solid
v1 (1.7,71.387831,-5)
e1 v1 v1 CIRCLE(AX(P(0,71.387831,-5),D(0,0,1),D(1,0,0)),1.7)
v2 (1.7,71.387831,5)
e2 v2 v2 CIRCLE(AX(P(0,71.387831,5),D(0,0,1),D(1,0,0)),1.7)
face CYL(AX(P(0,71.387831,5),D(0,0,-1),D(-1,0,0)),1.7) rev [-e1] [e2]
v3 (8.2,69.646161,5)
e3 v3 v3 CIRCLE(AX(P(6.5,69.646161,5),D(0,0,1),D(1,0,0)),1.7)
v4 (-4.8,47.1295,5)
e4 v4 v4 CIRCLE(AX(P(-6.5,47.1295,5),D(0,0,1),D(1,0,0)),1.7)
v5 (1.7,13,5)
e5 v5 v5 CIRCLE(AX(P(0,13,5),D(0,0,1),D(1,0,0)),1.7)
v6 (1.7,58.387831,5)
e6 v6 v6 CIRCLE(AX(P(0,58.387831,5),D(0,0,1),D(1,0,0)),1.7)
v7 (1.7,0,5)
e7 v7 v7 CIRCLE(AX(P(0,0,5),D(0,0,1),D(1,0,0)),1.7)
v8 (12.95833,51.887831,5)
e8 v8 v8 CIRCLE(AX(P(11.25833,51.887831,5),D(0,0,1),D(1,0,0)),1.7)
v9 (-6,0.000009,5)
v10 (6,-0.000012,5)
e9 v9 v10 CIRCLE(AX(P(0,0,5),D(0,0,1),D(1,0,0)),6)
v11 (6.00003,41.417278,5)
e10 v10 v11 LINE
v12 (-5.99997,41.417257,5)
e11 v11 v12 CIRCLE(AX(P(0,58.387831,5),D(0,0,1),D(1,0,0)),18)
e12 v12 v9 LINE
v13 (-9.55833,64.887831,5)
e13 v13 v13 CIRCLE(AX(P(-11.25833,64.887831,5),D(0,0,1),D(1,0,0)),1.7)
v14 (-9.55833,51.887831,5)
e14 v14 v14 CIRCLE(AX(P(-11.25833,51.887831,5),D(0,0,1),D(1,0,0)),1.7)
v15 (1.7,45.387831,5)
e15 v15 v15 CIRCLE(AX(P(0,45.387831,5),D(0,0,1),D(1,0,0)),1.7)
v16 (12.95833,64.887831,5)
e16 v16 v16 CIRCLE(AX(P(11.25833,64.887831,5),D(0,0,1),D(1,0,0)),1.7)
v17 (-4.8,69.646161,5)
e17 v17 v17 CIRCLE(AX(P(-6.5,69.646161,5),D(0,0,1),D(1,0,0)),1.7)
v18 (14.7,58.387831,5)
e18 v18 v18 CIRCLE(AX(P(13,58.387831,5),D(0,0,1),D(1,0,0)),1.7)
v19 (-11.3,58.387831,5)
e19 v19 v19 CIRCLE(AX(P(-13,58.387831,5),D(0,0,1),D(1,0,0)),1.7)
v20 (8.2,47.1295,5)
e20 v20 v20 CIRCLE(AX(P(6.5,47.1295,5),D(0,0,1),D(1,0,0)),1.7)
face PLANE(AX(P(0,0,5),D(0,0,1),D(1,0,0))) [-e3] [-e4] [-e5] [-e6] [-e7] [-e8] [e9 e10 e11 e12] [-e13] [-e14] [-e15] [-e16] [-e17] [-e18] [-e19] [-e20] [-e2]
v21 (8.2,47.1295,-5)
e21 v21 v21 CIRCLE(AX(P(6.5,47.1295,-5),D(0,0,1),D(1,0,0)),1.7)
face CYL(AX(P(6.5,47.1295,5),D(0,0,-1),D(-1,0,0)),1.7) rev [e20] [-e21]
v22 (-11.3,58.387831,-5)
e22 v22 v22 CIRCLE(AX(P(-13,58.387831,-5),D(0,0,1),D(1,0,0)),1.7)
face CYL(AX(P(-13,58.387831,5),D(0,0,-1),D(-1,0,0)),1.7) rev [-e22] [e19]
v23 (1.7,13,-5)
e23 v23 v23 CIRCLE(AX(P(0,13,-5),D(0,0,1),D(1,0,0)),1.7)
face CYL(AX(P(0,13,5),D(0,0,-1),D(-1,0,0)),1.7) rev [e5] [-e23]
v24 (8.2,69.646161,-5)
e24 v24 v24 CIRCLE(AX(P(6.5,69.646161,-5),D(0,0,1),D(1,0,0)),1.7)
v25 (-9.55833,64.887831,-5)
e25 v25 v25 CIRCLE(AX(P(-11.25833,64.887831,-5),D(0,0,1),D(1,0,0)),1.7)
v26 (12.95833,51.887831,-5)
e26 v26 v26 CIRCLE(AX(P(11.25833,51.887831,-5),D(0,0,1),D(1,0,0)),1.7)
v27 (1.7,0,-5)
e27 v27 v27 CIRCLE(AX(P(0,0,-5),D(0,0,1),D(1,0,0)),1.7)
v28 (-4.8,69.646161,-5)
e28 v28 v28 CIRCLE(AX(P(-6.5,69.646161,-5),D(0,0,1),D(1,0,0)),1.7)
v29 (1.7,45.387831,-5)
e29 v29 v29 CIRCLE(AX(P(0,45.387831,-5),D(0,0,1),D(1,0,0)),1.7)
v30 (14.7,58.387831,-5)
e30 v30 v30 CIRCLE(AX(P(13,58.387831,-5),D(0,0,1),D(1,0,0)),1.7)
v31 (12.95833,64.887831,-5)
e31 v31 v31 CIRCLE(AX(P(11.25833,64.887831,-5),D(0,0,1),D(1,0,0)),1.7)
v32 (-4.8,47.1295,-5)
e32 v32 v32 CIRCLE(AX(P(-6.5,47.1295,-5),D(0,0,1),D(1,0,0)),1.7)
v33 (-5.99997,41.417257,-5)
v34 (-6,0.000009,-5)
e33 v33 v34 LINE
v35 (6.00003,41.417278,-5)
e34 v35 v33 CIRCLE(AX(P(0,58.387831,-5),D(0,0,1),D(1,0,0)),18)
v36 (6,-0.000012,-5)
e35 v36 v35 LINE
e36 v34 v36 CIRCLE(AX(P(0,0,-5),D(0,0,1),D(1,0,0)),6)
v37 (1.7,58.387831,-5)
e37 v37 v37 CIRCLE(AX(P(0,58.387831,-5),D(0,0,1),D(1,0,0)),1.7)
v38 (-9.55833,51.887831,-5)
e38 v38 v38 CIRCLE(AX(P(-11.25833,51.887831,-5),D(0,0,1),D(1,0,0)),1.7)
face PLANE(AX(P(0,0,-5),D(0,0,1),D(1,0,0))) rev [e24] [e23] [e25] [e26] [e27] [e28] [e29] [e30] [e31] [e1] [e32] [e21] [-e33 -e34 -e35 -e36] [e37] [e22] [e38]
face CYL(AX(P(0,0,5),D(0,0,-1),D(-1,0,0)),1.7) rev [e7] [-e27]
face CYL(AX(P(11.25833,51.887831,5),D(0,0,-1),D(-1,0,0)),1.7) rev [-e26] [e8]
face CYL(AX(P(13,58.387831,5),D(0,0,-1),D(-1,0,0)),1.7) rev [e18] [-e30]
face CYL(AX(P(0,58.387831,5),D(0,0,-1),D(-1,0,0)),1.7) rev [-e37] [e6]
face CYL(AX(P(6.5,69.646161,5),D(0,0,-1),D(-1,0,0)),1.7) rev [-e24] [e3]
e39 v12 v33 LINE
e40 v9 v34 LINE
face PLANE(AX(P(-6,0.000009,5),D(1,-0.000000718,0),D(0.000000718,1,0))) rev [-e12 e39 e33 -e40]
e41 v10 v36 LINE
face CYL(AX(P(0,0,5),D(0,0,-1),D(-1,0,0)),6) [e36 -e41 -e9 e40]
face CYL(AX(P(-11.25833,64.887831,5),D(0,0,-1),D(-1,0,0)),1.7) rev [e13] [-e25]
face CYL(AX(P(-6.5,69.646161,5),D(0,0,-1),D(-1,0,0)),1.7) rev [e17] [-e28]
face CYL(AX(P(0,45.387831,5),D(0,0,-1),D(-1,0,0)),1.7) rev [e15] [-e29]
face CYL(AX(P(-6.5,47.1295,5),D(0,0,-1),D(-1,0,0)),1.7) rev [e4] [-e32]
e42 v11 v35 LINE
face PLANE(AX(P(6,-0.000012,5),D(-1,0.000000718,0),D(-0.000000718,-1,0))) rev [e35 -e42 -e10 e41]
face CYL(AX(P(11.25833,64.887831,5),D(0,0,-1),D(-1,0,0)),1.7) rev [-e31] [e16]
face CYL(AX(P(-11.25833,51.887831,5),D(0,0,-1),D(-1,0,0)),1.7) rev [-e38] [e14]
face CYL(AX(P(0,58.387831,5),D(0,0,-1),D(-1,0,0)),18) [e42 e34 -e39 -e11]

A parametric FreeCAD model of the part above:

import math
import FreeCAD as App
import Part
import Sketcher
Q = App.Units.Quantity

doc = App.newDocument("Part")
body = doc.addObject("PartDesign::Body", "Body")

# Sketch on XY plane
sketch1 = body.newObject("Sketcher::SketchObject", "Sketch")
sketch1.AttachmentSupport = (doc.getObject("XY_Plane"), [""])
sketch1.MapMode = "FlatFace"
sketch1.addGeometry(Part.LineSegment(App.Vector(-6, 41.4, 0), App.Vector(-6, 0, 0)), False)
sketch1.addGeometry(Part.ArcOfCircle(Part.Circle(App.Vector(0, 0, 0), App.Vector(0, 0, 1), 6), math.radians(180), math.radians(360)), False)
sketch1.addGeometry(Part.LineSegment(App.Vector(6, 0, 0), App.Vector(6, 41.4, 0)), False)
sketch1.addGeometry(Part.ArcOfCircle(Part.Circle(App.Vector(0, 58.4, 0), App.Vector(0, 0, 1), 18), math.radians(-71), math.radians(251)), False)
sketch1.addGeometry(Part.Circle(App.Vector(0, 0, 0), App.Vector(0, 0, 1), 1.7), False)
sketch1.addGeometry(Part.Circle(App.Vector(0, 13, 0), App.Vector(0, 0, 1), 1.7), False)
sketch1.addGeometry(Part.Circle(App.Vector(11.3, 51.9, 0), App.Vector(0, 0, 1), 1.7), False)
sketch1.addGeometry(Part.Circle(App.Vector(6.5, 47.1, 0), App.Vector(0, 0, 1), 1.7), False)
sketch1.addGeometry(Part.Circle(App.Vector(13, 58.4, 0), App.Vector(0, 0, 1), 1.7), False)
sketch1.addGeometry(Part.Circle(App.Vector(11.3, 64.9, 0), App.Vector(0, 0, 1), 1.7), False)
sketch1.addGeometry(Part.Circle(App.Vector(6.5, 69.6, 0), App.Vector(0, 0, 1), 1.7), False)
sketch1.addGeometry(Part.Circle(App.Vector(0, 45.4, 0), App.Vector(0, 0, 1), 1.7), False)
sketch1.addGeometry(Part.Circle(App.Vector(-6.5, 47.1, 0), App.Vector(0, 0, 1), 1.7), False)
sketch1.addGeometry(Part.Circle(App.Vector(-11.3, 51.9, 0), App.Vector(0, 0, 1), 1.7), False)
sketch1.addGeometry(Part.Circle(App.Vector(0, 58.4, 0), App.Vector(0, 0, 1), 1.7), False)
sketch1.addGeometry(Part.Circle(App.Vector(0, 71.4, 0), App.Vector(0, 0, 1), 1.7), False)
sketch1.addGeometry(Part.Circle(App.Vector(-6.5, 69.6, 0), App.Vector(0, 0, 1), 1.7), False)
sketch1.addGeometry(Part.Circle(App.Vector(-13, 58.4, 0), App.Vector(0, 0, 1), 1.7), False)
sketch1.addGeometry(Part.Circle(App.Vector(-11.3, 64.9, 0), App.Vector(0, 0, 1), 1.7), False)
sketch1.addConstraint(Sketcher.Constraint("Tangent", 0, 2, 1, 1))
sketch1.addConstraint(Sketcher.Constraint("Tangent", 1, 2, 2, 1))
sketch1.addConstraint(Sketcher.Constraint("Coincident", 2, 2, 3, 1))
sketch1.addConstraint(Sketcher.Constraint("Coincident", 3, 2, 0, 1))
sketch1.addConstraint(Sketcher.Constraint("Coincident", 1, 3, -1, 1))
sketch1.addConstraint(Sketcher.Constraint("Coincident", 4, 3, -1, 1))
sketch1.addConstraint(Sketcher.Constraint("Coincident", 14, 3, 3, 3))
sketch1.addConstraint(Sketcher.Constraint("Equal", 4, 5))
sketch1.addConstraint(Sketcher.Constraint("Equal", 5, 6))
sketch1.addConstraint(Sketcher.Constraint("Equal", 6, 7))
sketch1.addConstraint(Sketcher.Constraint("Equal", 7, 8))
sketch1.addConstraint(Sketcher.Constraint("Equal", 8, 9))
sketch1.addConstraint(Sketcher.Constraint("Equal", 9, 10))
sketch1.addConstraint(Sketcher.Constraint("Equal", 10, 11))
sketch1.addConstraint(Sketcher.Constraint("Equal", 11, 12))
sketch1.addConstraint(Sketcher.Constraint("Equal", 12, 13))
sketch1.addConstraint(Sketcher.Constraint("Equal", 13, 14))
sketch1.addConstraint(Sketcher.Constraint("Equal", 14, 15))
sketch1.addConstraint(Sketcher.Constraint("Equal", 15, 16))
sketch1.addConstraint(Sketcher.Constraint("Equal", 16, 17))
sketch1.addConstraint(Sketcher.Constraint("Equal", 17, 18))
sketch1.addConstraint(Sketcher.Constraint("Symmetric", 7, 3, 12, 3, -2))
sketch1.addConstraint(Sketcher.Constraint("Symmetric", 6, 3, 13, 3, -2))
sketch1.addConstraint(Sketcher.Constraint("Symmetric", 10, 3, 16, 3, -2))
sketch1.addConstraint(Sketcher.Constraint("Symmetric", 8, 3, 17, 3, -2))
sketch1.addConstraint(Sketcher.Constraint("Symmetric", 9, 3, 18, 3, -2))
sketch1.addConstraint(Sketcher.Constraint("PointOnObject", 3, 3, -2))
sketch1.addConstraint(Sketcher.Constraint("PointOnObject", 5, 3, -2))
sketch1.addConstraint(Sketcher.Constraint("PointOnObject", 11, 3, -2))
sketch1.addConstraint(Sketcher.Constraint("PointOnObject", 15, 3, -2))
sketch1.addConstraint(Sketcher.Constraint("Parallel", 0, 2))
sketch1.addConstraint(Sketcher.Constraint("Horizontal", 3, 3, 8, 3))
sketch1.addConstraint(Sketcher.Constraint("Vertical", 6, 3, 9, 3))
sketch1.addConstraint(Sketcher.Constraint("Vertical", 7, 3, 10, 3))
sketch1.addConstraint(Sketcher.Constraint("Radius", 1, Q("6 mm")))
sketch1.addConstraint(Sketcher.Constraint("Radius", 3, Q("18 mm")))
sketch1.addConstraint(Sketcher.Constraint("Diameter", 4, Q("3.4 mm")))
sketch1.addConstraint(Sketcher.Constraint("DistanceY", -1, 1, 5, 3, Q("13 mm")))
sketch1.addConstraint(Sketcher.Constraint("DistanceX", -1, 1, 8, 3, Q("13 mm")))
sketch1.addConstraint(Sketcher.Constraint("DistanceY", 6, 3, 9, 3, Q("13 mm")))
sketch1.addConstraint(Sketcher.Constraint("DistanceY", 11, 3, 3, 3, Q("13 mm")))
sketch1.addConstraint(Sketcher.Constraint("DistanceX", 12, 3, 7, 3, Q("13 mm")))
sketch1.addConstraint(Sketcher.Constraint("DistanceY", 3, 3, 15, 3, Q("13 mm")))
sketch1.addConstraint(Sketcher.Constraint("DistanceY", 6, 3, 3, 3, Q("6.5 mm")))
sketch1.addConstraint(Sketcher.Constraint("DistanceY", -1, 1, 7, 3, Q("47.1295 mm")))
sketch1.addConstraint(Sketcher.Constraint("DistanceX", 2, 2, 6, 3, Q("5.2583 mm")))
sketch1.addConstraint(Sketcher.Constraint("Distance", 0, Q("41.417248 mm")))
sketch1.addConstraint(Sketcher.Constraint("Distance", 2, Q("41.41729 mm")))
sketch1.addConstraint(Sketcher.Constraint("DistanceY", -1, 1, 10, 3, Q("69.646161 mm")))
pad1 = body.newObject("PartDesign::Pad", "Pad")
pad1.Profile = sketch1
pad1.Length = 10
pad1.Midplane = True

doc.recompute()
